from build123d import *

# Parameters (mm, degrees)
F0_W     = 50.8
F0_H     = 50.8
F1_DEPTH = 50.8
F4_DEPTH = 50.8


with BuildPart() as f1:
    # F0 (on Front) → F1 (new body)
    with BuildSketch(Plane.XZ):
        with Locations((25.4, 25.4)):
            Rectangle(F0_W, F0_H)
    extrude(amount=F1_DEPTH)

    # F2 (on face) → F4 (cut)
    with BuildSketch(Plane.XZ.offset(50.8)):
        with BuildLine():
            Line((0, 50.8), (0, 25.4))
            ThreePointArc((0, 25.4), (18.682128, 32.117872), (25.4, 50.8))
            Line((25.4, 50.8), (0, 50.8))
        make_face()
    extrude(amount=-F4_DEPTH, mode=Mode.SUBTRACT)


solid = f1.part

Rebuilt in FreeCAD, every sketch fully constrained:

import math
import FreeCAD as App
import Part
import Sketcher
from FreeCAD import Vector
Q = App.Units.Quantity


def add_polygon(sketch, points):
    """Adds a closed chain of lines whose ends are joined by coincident constraints."""
    first, n = sketch.GeometryCount, len(points)
    for a, b in zip(points, points[1:] + points[:1]):
        sketch.addGeometry(Part.LineSegment(App.Vector(*a, 0), App.Vector(*b, 0)), False)
    for i in range(n):
        sketch.addConstraint(Sketcher.Constraint("Coincident", first + i, 2, first + (i + 1) % n, 1))

doc = App.newDocument("Part")
body = doc.addObject("PartDesign::Body", "Body")

sketch1 = doc.addObject("Sketcher::SketchObject", "Sketch")
body.addObject(sketch1)
sketch1.AttachmentSupport = (doc.XZ_Plane, [""])
sketch1.MapMode = "FlatFace"
add_polygon(sketch1, [(0, 50.8), (0, 0), (50.8, 0), (50.8, 50.8)])
sketch1.addConstraint([
    Sketcher.Constraint("Vertical", 0),
    Sketcher.Constraint("Horizontal", 1),
    Sketcher.Constraint("Vertical", 2),
    Sketcher.Constraint("Horizontal", 3),
    Sketcher.Constraint("Coincident", 0, 2, -1, 1),
    Sketcher.Constraint("Equal", 3, 0),
    Sketcher.Constraint("DistanceX", 1, 1, 1, 2, Q("2 in")),
])
pad1 = doc.addObject("PartDesign::Pad", "Pad")
body.addObject(pad1)
pad1.Profile = sketch1
pad1.Length = Q("2 in")

sketch2 = doc.addObject("Sketcher::SketchObject", "Sketch001")
body.addObject(sketch2)
sketch2.AttachmentSupport = (doc.XZ_Plane, [""])
sketch2.MapMode = "FlatFace"
sketch2.AttachmentOffset = App.Placement(Vector(0, 0, 2 * 25.4), App.Rotation())
sketch2.addGeometry([
    Part.LineSegment(Vector(0, 50.8, 0), Vector(0, 25.4, 0)),
    Part.ArcOfCircle(Part.Circle(Vector(2.210075, 48.589925, 0), Vector(0, 0, 1), 23.295), math.radians(-95.444032), math.radians(5.444032)),
    Part.LineSegment(Vector(25.4, 50.8, 0), Vector(0, 50.8, 0)),
], False)
sketch2.addConstraint([
    Sketcher.Constraint("Coincident", 0, 2, 1, 1),
    Sketcher.Constraint("Coincident", 1, 2, 2, 1),
    Sketcher.Constraint("Coincident", 2, 2, 0, 1),
    Sketcher.Constraint("Vertical", 0),
    Sketcher.Constraint("Horizontal", 2),
    Sketcher.Constraint("PointOnObject", 0, 2, -2),
    Sketcher.Constraint("Equal", 2, 0),
    Sketcher.Constraint("DistanceX", 2, 2, 2, 1, Q("1 in")),
    Sketcher.Constraint("DistanceY", -1, 1, 0, 2, Q("1 in")),
    Sketcher.Constraint("Radius", 1, 23.295),
])
pocket1 = doc.addObject("PartDesign::Pocket", "Pocket")
body.addObject(pocket1)
pocket1.Profile = sketch2
pocket1.Length = Q("2 in")

doc.recompute()
